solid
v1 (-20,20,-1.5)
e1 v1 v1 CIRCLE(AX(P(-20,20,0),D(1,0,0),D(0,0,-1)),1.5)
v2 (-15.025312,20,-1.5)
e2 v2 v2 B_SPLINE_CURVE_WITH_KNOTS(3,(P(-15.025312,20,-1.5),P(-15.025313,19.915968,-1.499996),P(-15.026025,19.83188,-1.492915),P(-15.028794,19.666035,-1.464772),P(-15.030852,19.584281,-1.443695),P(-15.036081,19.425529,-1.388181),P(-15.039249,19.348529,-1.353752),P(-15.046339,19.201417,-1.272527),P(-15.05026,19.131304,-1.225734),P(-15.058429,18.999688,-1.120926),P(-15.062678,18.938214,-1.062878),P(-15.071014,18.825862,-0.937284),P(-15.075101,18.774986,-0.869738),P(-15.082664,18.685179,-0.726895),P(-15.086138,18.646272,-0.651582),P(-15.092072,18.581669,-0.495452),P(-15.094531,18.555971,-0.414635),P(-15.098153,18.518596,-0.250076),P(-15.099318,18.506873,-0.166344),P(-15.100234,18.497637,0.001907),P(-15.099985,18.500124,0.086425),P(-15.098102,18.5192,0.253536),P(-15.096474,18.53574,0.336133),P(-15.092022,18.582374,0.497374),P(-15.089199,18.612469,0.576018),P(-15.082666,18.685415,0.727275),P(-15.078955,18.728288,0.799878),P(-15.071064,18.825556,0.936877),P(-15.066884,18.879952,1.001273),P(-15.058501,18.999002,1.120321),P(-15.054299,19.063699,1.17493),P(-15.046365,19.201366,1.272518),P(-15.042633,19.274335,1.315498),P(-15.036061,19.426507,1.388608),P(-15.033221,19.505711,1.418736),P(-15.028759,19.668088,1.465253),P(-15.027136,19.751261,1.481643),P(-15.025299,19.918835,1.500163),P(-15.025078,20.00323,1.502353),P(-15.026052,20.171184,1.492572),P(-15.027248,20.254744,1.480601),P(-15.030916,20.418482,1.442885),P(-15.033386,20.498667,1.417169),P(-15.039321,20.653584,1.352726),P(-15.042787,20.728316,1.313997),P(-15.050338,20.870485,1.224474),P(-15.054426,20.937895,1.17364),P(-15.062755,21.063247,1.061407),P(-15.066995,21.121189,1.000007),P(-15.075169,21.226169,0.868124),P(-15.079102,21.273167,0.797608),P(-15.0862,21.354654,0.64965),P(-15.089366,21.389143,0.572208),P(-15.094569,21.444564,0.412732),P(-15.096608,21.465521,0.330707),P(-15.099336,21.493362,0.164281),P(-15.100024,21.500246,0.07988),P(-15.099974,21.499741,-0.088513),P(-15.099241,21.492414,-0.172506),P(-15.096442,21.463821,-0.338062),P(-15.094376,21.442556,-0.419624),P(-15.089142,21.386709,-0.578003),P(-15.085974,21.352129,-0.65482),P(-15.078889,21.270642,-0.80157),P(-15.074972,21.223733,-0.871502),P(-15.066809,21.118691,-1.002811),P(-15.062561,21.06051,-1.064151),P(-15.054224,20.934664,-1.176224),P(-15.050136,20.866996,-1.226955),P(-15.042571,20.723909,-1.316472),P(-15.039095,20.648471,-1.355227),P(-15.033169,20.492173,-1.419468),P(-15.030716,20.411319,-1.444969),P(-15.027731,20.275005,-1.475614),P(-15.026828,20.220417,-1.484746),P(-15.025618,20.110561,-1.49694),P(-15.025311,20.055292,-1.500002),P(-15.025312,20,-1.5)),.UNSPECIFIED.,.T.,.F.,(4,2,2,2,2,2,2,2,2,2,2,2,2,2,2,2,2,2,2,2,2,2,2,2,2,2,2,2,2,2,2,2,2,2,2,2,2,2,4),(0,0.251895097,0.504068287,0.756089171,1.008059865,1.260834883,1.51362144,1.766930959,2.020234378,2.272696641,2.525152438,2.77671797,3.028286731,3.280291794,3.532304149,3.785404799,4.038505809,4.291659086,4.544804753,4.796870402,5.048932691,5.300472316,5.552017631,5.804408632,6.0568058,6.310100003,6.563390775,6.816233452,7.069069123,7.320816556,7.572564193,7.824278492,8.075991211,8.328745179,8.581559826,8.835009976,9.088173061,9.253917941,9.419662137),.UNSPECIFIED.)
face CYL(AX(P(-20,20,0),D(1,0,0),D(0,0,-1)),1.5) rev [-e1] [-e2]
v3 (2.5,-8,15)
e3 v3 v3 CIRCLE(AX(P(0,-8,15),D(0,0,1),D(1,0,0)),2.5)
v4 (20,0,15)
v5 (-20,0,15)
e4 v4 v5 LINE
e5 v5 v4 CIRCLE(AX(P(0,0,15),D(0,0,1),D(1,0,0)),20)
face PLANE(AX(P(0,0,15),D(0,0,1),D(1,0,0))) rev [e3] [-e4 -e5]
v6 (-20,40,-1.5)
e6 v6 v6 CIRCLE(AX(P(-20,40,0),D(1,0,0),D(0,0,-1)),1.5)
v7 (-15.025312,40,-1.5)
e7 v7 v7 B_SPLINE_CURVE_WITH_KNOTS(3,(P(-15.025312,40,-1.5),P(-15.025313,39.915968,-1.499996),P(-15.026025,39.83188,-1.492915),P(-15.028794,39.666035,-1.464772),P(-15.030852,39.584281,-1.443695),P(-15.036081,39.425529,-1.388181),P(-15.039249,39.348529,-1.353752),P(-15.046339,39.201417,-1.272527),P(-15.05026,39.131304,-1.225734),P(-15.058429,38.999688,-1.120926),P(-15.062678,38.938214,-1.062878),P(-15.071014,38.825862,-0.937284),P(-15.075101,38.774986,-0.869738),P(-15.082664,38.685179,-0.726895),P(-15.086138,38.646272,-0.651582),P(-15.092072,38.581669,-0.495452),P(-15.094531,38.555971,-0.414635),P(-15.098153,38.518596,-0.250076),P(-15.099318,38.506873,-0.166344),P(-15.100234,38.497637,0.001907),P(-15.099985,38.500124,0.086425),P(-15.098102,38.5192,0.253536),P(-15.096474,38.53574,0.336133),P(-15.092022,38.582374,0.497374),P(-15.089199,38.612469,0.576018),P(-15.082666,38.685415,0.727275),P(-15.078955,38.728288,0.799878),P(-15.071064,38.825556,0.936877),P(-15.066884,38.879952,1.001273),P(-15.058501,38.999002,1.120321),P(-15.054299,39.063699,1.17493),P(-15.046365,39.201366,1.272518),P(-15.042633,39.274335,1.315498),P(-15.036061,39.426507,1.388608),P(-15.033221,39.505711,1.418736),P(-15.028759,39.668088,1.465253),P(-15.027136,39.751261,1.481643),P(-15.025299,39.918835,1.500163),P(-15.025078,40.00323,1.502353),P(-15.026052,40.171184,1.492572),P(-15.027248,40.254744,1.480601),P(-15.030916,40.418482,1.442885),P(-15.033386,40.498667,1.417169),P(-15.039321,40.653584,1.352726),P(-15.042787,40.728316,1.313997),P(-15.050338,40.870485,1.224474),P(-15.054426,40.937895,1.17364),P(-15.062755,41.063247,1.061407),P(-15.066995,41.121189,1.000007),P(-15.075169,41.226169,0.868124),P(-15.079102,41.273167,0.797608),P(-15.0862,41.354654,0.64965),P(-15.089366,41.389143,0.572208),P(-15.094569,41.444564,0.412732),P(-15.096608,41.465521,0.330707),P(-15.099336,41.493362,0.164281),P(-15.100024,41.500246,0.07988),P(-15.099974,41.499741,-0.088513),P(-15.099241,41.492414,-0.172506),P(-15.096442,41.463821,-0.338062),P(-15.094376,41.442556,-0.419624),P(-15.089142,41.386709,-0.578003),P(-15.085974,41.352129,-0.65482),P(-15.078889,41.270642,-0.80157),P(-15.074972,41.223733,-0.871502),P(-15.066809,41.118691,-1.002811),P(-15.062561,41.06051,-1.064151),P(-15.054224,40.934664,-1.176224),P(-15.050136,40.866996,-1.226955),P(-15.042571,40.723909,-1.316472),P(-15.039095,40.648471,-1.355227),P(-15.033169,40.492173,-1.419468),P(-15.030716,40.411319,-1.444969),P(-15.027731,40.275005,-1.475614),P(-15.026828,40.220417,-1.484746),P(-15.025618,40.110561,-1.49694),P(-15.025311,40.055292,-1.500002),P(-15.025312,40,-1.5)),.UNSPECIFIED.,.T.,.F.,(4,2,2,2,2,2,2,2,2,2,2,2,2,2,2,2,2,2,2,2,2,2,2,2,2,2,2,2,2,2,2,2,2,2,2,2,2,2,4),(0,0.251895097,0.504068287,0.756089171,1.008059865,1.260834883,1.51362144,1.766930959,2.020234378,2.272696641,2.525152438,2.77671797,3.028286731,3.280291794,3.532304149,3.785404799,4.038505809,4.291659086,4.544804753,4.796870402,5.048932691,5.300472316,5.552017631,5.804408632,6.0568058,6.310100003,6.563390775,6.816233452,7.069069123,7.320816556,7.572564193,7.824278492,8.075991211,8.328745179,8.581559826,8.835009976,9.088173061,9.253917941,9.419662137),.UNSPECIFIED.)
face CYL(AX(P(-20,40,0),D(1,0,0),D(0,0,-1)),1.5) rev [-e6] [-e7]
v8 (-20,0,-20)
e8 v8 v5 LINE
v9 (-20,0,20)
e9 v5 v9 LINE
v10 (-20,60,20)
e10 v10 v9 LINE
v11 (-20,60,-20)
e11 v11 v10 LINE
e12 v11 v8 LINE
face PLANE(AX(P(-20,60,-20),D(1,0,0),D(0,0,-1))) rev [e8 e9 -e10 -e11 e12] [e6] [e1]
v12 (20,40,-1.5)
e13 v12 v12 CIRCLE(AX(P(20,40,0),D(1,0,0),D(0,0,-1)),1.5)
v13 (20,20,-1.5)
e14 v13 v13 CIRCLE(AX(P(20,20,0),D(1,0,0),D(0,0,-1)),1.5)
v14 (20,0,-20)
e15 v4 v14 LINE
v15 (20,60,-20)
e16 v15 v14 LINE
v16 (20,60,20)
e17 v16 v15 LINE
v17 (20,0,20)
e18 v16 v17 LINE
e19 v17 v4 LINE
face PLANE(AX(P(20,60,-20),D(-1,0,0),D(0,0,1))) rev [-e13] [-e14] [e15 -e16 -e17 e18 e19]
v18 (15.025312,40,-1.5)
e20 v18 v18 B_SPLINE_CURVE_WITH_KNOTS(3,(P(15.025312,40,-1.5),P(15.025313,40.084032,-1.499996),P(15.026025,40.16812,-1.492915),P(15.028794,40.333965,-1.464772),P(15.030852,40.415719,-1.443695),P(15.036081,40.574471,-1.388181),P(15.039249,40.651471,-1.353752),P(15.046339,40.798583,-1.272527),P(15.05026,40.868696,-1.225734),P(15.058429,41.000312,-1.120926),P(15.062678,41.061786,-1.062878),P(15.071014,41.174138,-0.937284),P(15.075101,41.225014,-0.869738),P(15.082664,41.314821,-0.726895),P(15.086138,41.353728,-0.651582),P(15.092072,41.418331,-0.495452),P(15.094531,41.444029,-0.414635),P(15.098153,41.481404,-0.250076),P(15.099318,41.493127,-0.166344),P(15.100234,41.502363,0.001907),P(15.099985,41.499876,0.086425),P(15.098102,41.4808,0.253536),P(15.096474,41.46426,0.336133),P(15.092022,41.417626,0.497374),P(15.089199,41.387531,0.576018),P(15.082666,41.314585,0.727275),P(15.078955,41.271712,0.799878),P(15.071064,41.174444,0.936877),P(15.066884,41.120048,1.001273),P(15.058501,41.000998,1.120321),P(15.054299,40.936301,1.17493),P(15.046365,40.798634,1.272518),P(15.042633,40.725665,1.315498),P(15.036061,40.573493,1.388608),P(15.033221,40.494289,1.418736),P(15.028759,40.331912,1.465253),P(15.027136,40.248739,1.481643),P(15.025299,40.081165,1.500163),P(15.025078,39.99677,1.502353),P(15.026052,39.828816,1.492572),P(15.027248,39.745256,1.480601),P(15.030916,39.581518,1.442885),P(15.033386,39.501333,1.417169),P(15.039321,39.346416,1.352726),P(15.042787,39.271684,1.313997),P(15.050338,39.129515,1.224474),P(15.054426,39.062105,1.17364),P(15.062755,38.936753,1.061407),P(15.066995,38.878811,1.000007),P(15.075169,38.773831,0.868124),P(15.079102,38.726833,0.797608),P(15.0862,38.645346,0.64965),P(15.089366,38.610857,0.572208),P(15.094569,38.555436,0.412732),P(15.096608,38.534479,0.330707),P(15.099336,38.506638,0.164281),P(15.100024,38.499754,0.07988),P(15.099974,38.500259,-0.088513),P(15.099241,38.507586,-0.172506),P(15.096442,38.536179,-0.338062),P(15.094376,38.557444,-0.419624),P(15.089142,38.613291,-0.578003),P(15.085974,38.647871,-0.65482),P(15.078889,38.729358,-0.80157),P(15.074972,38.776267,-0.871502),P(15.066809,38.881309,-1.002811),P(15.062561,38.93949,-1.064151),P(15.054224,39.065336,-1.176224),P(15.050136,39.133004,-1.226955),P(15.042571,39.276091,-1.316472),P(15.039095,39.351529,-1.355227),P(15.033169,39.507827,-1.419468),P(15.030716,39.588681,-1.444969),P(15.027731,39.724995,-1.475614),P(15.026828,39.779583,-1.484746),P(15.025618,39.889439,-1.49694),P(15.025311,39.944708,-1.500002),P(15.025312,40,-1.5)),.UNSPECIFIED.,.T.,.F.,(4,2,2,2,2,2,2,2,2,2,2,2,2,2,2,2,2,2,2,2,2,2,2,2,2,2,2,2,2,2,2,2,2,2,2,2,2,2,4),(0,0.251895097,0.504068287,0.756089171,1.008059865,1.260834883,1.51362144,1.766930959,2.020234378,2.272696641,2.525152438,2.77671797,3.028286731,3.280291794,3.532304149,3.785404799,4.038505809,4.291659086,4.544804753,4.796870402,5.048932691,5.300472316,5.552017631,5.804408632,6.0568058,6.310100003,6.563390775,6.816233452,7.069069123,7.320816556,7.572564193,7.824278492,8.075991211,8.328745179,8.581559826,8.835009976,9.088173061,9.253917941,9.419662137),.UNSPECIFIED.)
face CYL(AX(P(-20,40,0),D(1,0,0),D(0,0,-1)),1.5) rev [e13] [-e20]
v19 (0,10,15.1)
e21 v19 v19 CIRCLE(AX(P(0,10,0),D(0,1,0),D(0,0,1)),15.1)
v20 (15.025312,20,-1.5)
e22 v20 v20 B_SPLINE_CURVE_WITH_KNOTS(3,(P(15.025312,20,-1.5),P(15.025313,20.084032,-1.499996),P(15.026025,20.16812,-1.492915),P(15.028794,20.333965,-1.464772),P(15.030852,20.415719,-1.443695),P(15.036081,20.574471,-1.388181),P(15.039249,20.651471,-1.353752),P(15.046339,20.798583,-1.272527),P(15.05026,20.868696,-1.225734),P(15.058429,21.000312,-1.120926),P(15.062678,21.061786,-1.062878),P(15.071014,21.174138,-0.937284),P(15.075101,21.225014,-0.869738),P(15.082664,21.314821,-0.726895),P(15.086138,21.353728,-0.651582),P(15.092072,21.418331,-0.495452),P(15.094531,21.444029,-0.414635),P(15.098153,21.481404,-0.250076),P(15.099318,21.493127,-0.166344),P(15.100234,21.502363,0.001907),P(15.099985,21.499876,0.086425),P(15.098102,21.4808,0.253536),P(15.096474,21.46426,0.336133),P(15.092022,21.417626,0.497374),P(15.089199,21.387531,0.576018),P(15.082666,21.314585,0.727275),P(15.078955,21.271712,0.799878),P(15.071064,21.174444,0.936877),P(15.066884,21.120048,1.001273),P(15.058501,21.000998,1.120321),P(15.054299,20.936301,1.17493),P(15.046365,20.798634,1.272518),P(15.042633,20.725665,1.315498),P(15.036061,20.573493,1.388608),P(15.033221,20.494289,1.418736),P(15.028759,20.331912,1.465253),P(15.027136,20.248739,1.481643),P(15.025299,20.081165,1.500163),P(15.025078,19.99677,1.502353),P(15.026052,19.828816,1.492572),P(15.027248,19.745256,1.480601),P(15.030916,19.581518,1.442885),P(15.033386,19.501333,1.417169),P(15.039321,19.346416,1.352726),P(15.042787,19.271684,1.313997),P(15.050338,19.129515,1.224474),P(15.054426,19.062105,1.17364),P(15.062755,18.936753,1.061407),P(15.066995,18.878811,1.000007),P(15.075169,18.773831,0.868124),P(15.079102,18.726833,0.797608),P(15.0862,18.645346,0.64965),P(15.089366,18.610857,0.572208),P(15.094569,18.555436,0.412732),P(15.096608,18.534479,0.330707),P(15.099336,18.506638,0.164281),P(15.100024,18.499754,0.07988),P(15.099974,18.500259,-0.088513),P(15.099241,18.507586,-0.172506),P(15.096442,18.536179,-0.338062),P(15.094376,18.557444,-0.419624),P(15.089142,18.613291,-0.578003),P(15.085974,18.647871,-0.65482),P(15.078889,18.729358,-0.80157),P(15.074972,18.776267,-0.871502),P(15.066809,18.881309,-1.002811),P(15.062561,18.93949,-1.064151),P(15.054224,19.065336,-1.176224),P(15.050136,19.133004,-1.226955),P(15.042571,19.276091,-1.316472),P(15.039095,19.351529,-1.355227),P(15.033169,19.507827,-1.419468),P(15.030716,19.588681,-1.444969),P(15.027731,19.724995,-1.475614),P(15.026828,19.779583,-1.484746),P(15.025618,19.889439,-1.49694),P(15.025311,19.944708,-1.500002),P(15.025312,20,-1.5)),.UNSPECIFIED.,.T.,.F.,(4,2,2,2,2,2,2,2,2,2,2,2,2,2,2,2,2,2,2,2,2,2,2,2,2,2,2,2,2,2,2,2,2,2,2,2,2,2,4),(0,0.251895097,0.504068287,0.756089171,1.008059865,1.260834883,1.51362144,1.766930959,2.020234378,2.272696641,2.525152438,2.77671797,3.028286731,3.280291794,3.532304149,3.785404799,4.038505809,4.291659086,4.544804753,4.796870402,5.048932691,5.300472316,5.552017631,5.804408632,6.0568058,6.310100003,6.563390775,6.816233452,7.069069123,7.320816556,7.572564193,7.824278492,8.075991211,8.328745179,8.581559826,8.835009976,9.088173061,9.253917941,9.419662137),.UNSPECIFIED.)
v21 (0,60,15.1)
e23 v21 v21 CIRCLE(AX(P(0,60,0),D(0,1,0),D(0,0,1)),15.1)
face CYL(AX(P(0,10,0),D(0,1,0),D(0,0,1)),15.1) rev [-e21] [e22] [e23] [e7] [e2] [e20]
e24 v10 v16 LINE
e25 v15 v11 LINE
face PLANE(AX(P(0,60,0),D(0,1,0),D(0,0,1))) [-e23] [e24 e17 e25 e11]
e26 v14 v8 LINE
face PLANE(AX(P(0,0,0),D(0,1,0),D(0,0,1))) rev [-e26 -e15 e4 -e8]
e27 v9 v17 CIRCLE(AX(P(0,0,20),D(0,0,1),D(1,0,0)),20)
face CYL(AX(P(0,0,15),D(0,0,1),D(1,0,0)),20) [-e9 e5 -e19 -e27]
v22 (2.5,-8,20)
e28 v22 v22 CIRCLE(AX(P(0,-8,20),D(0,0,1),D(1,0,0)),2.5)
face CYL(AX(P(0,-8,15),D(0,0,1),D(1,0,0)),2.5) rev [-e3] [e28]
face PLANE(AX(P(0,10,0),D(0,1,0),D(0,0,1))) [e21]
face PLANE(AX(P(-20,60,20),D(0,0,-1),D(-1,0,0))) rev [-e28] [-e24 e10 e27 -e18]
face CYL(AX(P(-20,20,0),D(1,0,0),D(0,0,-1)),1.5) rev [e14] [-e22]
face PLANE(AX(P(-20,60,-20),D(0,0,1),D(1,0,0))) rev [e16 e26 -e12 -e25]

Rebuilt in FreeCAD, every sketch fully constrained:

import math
import FreeCAD as App
import Part
import Sketcher

doc = App.newDocument("Part")
body = doc.addObject("PartDesign::Body", "Body")

# Sketch on XZ plane
sketch1 = body.newObject("Sketcher::SketchObject", "Sketch")
sketch1.AttachmentSupport = (doc.getObject("XZ_Plane"), [""])
sketch1.MapMode = "FlatFace"
sketch1.addGeometry([
    Part.LineSegment(App.Vector(-20, -20, 0), App.Vector(-20, 20, 0)),
    Part.LineSegment(App.Vector(-20, 20, 0), App.Vector(20, 20, 0)),
    Part.LineSegment(App.Vector(20, 20, 0), App.Vector(20, -20, 0)),
    Part.LineSegment(App.Vector(20, -20, 0), App.Vector(-20, -20, 0)),
], False)
sketch1.addConstraint([
    Sketcher.Constraint("Coincident", 0, 2, 1, 1),
    Sketcher.Constraint("Coincident", 1, 2, 2, 1),
    Sketcher.Constraint("Coincident", 2, 2, 3, 1),
    Sketcher.Constraint("Coincident", 3, 2, 0, 1),
    Sketcher.Constraint("Vertical", 0),
    Sketcher.Constraint("Horizontal", 1),
    Sketcher.Constraint("Vertical", 2),
    Sketcher.Constraint("Horizontal", 3),
    Sketcher.Constraint("Symmetric", 0, 2, 2, 2, -1, 1),
    Sketcher.Constraint("Equal", 3, 0),
    Sketcher.Constraint("DistanceX", 1, 1, 1, 2, 40.0),
])
pad1 = body.newObject("PartDesign::Pad", "Pad")
pad1.Profile = sketch1
pad1.Length = 60
pad1.Reversed = True

# Sketch on XZ plane
sketch2 = body.newObject("Sketcher::SketchObject", "Sketch001")
sketch2.AttachmentSupport = (doc.getObject("XZ_Plane"), [""])
sketch2.MapMode = "FlatFace"
sketch2.AttachmentOffset = App.Placement(App.Vector(0, 0, -60), App.Rotation())
sketch2.addGeometry(Part.Circle(App.Vector(0, 0, 0), App.Vector(0, 0, 1), 15.1), False)
sketch2.addConstraint([
    Sketcher.Constraint("Coincident", 0, 3, -1, 1),
    Sketcher.Constraint("Diameter", 0, 30.2),
])
pocket1 = body.newObject("PartDesign::Pocket", "Pocket")
pocket1.Profile = sketch2
pocket1.Length = 50
pocket1.Reversed = True

# Sketch on XY plane
sketch3 = body.newObject("Sketcher::SketchObject", "Sketch002")
sketch3.AttachmentSupport = (doc.getObject("XY_Plane"), [""])
sketch3.MapMode = "FlatFace"
sketch3.AttachmentOffset = App.Placement(App.Vector(0, 0, 20), App.Rotation())
sketch3.addGeometry([
    Part.LineSegment(App.Vector(20, 0, 0), App.Vector(-20, 0, 0)),
    Part.ArcOfCircle(Part.Circle(App.Vector(0, 0, 0), App.Vector(0, 0, 1), 20), math.radians(180), math.radians(360)),
    Part.Circle(App.Vector(0, -8, 0), App.Vector(0, 0, 1), 2.5),
], False)
sketch3.addConstraint([
    Sketcher.Constraint("Coincident", 0, 1, 1, 2),
    Sketcher.Constraint("Coincident", 1, 1, 0, 2),
    Sketcher.Constraint("Horizontal", 0),
    Sketcher.Constraint("Coincident", 1, 3, -1, 1),
    Sketcher.Constraint("PointOnObject", 2, 3, -2),
    Sketcher.Constraint("PointOnObject", 0, 1, -1),
    Sketcher.Constraint("Diameter", 2, 5.0),
    Sketcher.Constraint("Radius", 1, 20.0),
    Sketcher.Constraint("DistanceY", 2, 3, -1, 1, 8.0),
])
pad2 = body.newObject("PartDesign::Pad", "Pad001")
pad2.Profile = sketch3
pad2.Length = 5
pad2.Reversed = True

# Sketch on YZ plane
sketch4 = body.newObject("Sketcher::SketchObject", "Sketch003")
sketch4.AttachmentSupport = (doc.getObject("YZ_Plane"), [""])
sketch4.MapMode = "FlatFace"
sketch4.AttachmentOffset = App.Placement(App.Vector(0, 0, 20), App.Rotation())
sketch4.addGeometry(Part.Circle(App.Vector(20, 0, 0), App.Vector(0, 0, 1), 1.5), False)
sketch4.addConstraint([
    Sketcher.Constraint("PointOnObject", 0, 3, -1),
    Sketcher.Constraint("Diameter", 0, 3.0),
    Sketcher.Constraint("DistanceX", -1, 1, 0, 3, 20.0),
])
pocket2 = body.newObject("PartDesign::Pocket", "Pocket001")
pocket2.Profile = sketch4
pocket2.Type = "ThroughAll"
doc.recompute()

linearpattern = body.newObject("PartDesign::LinearPattern", "LinearPattern")
linearpattern.Originals = [pocket2]
linearpattern.Direction = (doc.getObject("Y_Axis"), [""])
linearpattern.Mode = "offset"
linearpattern.Offset = 20
linearpattern.Occurrences = 2
body.Tip = linearpattern

doc.recompute()
